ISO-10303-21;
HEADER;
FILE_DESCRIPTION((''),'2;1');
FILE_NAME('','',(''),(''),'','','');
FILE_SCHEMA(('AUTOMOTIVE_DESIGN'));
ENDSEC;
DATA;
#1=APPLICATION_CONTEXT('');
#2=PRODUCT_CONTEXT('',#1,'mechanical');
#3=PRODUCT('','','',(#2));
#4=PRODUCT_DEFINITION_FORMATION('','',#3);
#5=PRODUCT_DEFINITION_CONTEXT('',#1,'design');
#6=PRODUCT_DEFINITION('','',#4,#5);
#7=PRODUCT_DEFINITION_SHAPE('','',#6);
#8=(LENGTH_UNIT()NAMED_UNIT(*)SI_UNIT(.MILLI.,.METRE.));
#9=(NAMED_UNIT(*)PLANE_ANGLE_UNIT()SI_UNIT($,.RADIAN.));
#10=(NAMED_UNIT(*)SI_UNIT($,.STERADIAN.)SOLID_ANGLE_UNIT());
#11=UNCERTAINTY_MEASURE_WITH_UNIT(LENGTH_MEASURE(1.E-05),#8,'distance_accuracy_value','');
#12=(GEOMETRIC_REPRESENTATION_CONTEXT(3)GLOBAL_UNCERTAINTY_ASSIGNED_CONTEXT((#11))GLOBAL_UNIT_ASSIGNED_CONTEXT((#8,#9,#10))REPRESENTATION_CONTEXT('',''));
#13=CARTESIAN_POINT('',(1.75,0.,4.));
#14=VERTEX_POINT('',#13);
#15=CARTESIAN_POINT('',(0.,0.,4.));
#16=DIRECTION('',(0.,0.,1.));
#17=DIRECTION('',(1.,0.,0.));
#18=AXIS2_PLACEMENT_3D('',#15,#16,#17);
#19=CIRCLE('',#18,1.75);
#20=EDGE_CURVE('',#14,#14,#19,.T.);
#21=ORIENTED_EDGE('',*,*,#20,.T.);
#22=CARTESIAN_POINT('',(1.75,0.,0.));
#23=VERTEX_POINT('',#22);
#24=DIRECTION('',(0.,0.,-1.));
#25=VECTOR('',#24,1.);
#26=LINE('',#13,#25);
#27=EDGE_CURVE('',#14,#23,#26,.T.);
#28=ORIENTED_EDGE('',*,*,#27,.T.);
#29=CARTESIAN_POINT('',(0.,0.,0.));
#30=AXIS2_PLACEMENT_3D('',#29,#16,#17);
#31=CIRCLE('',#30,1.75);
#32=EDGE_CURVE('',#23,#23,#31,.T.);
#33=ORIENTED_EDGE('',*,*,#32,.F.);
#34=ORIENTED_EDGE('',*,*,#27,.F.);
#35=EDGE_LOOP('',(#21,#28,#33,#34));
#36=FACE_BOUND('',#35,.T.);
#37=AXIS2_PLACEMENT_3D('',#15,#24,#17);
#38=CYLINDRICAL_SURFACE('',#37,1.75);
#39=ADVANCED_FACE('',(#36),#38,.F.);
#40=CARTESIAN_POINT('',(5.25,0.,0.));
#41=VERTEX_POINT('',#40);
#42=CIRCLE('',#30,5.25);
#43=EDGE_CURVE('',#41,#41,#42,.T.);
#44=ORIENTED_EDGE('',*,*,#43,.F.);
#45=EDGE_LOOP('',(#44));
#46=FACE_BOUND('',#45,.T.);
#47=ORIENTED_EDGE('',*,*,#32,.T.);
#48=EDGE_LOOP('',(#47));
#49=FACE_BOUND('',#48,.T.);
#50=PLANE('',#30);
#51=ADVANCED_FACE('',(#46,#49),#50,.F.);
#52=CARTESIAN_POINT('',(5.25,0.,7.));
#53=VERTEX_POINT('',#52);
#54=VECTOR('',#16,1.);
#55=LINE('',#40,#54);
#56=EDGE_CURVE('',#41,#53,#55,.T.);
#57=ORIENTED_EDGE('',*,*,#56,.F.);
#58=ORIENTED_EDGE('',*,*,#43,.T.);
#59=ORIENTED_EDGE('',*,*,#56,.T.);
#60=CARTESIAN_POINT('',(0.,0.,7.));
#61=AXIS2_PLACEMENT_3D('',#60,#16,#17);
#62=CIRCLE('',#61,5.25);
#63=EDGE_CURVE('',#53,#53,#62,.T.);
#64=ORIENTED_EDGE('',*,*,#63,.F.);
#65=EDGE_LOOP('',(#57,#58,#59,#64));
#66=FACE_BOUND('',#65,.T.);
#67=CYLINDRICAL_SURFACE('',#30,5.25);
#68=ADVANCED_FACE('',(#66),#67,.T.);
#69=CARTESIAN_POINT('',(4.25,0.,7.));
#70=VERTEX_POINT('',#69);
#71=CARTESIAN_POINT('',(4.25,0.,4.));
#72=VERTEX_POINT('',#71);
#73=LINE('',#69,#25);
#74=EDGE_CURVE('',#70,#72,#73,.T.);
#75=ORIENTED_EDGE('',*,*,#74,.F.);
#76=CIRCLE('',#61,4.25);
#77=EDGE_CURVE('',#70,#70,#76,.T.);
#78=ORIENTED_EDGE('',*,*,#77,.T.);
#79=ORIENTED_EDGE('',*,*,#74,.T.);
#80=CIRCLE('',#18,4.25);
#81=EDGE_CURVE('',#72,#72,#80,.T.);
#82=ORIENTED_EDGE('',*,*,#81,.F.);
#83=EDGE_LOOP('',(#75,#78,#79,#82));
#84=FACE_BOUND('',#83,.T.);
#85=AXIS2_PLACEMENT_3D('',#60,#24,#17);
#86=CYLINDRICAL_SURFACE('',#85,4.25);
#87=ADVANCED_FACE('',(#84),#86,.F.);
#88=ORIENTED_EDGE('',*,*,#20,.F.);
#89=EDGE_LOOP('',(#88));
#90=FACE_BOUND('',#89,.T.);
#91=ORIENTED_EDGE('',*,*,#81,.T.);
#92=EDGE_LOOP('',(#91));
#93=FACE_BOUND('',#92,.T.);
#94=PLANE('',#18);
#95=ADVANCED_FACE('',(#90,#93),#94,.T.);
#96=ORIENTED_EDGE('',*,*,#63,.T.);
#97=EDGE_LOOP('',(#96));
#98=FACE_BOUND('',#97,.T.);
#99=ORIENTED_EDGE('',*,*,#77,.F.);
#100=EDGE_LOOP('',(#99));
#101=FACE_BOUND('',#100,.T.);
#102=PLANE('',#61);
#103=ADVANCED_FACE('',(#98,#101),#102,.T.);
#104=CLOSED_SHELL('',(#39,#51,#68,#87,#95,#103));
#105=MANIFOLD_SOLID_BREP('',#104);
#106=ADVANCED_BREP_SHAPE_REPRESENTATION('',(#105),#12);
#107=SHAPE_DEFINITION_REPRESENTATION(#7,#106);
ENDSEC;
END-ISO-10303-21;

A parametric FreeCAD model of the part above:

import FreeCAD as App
import Part
import Sketcher
from FreeCAD import Vector
Q = App.Units.Quantity

doc = App.newDocument("Part")
body = doc.addObject("PartDesign::Body", "Body")

# Sketch on XZ plane
sketch1 = body.newObject("Sketcher::SketchObject", "Sketch")
sketch1.AttachmentSupport = (doc.getObject("XZ_Plane"), [""])
sketch1.MapMode = "FlatFace"
sketch1.addGeometry([
    Part.LineSegment(Vector(1.8, 0, 0), Vector(5.2, 0, 0)),  # 0
    Part.LineSegment(Vector(5.2, 0, 0), Vector(5.2, 7, 0)),  # 1
    Part.LineSegment(Vector(5.2, 7, 0), Vector(4.2, 7, 0)),  # 2
    Part.LineSegment(Vector(4.2, 7, 0), Vector(4.2, 4, 0)),  # 3
    Part.LineSegment(Vector(4.2, 4, 0), Vector(1.8, 4, 0)),  # 4
    Part.LineSegment(Vector(1.8, 4, 0), Vector(1.8, 0, 0)),  # 5
], False)
sketch1.addConstraint([
    Sketcher.Constraint("Coincident", 0, 2, 1, 1),
    Sketcher.Constraint("Coincident", 1, 2, 2, 1),
    Sketcher.Constraint("Coincident", 2, 2, 3, 1),
    Sketcher.Constraint("Coincident", 3, 2, 4, 1),
    Sketcher.Constraint("Coincident", 4, 2, 5, 1),
    Sketcher.Constraint("Coincident", 5, 2, 0, 1),
    Sketcher.Constraint("Horizontal", 0),
    Sketcher.Constraint("Vertical", 1),
    Sketcher.Constraint("Horizontal", 2),
    Sketcher.Constraint("Vertical", 3),
    Sketcher.Constraint("Horizontal", 4),
    Sketcher.Constraint("Vertical", 5),
    Sketcher.Constraint("PointOnObject", 0, 2, -1),
    Sketcher.Constraint("DistanceX", 2, 2, 2, 1, Q("1 mm")),
    Sketcher.Constraint("DistanceY", 1, 1, 1, 2, Q("7 mm")),
    Sketcher.Constraint("DistanceY", 3, 2, 3, 1, Q("3 mm")),
    Sketcher.Constraint("DistanceX", 0, 1, 0, 2, Q("3.5 mm")),
    Sketcher.Constraint("DistanceX", -1, 1, 0, 2, Q("5.25 mm")),
])
revolution = body.newObject("PartDesign::Revolution", "Revolution")
revolution.Profile = sketch1
revolution.ReferenceAxis = (sketch1, ["V_Axis"])
revolution.Angle = 360

doc.recompute()
